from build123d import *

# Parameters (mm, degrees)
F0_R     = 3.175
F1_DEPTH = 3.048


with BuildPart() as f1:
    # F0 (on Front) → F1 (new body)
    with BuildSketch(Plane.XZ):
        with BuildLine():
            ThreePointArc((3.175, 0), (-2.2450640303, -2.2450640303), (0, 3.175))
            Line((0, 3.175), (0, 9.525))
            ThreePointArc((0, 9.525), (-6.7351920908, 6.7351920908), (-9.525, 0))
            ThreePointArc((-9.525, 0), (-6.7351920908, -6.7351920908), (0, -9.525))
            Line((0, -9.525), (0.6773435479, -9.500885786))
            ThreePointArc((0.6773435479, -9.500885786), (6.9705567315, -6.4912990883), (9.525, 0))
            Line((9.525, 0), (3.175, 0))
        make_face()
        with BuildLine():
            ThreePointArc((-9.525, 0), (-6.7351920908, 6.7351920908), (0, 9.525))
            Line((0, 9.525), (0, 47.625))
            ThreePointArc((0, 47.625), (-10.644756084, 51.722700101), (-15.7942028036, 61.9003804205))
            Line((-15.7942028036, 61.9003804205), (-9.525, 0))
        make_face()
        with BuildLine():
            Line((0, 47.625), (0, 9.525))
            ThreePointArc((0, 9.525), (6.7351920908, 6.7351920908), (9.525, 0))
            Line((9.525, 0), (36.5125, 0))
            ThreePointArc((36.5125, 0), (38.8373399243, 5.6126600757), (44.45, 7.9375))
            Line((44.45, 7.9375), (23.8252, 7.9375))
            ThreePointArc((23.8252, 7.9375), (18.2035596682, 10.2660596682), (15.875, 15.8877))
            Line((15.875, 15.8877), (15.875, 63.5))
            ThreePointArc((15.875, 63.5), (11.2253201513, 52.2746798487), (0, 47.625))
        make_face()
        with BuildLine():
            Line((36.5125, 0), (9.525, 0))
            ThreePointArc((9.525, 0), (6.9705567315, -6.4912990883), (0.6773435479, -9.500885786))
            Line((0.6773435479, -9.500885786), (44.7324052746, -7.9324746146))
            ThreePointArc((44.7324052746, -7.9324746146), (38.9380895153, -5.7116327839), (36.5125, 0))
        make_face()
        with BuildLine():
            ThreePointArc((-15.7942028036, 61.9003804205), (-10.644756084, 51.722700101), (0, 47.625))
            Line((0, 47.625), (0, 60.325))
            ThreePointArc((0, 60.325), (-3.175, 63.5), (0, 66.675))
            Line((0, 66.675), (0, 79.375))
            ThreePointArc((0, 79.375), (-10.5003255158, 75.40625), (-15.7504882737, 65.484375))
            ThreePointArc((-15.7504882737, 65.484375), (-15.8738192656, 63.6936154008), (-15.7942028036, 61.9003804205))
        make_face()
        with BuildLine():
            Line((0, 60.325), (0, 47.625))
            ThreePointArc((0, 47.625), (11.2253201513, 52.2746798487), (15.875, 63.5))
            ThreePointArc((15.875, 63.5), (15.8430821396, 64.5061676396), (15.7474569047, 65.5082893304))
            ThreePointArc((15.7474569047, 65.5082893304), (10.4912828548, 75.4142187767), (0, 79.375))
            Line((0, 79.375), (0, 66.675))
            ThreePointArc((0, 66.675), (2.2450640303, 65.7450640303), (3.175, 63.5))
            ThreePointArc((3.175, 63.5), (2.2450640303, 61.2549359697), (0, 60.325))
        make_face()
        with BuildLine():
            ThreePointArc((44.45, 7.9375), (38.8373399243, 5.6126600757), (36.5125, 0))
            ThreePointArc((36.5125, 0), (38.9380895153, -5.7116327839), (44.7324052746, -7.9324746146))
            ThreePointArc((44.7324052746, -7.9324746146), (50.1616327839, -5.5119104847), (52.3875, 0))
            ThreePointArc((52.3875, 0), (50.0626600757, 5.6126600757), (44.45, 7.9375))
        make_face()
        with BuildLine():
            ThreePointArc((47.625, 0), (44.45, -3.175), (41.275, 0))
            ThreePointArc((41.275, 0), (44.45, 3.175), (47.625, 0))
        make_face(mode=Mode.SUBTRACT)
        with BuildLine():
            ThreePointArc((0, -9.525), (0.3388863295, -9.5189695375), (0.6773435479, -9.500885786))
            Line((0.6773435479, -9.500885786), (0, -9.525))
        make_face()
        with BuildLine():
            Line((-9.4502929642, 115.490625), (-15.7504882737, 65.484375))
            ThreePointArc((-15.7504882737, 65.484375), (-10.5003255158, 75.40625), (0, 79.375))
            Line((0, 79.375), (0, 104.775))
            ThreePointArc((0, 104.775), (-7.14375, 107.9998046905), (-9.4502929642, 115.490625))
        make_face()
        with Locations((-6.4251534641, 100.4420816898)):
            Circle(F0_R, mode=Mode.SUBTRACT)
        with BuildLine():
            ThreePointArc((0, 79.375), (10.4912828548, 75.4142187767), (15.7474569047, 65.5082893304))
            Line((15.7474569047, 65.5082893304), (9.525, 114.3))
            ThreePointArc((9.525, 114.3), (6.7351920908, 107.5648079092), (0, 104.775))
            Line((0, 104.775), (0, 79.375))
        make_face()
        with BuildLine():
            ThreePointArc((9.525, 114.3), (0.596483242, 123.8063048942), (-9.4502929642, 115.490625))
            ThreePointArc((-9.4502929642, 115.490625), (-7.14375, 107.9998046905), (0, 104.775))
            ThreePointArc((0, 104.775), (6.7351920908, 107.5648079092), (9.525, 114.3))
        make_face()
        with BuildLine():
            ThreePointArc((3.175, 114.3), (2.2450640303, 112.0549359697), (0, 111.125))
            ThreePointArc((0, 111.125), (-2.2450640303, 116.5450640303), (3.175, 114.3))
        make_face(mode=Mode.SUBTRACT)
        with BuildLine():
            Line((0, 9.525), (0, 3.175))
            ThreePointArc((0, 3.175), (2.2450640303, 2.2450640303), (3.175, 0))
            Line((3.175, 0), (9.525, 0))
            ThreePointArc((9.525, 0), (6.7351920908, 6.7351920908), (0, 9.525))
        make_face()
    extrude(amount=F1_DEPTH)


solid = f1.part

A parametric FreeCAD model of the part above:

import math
import FreeCAD as App
import Part
import Sketcher

V = App.Vector
Q = App.Units.Quantity

doc = App.newDocument("Part")
params = doc.addObject("Spreadsheet::Sheet", "Params")
for row, (alias, value) in enumerate([
    ("sketch1_diameter", "0.25 in"),
    ("sketch1_radius", "0.375 in"),
    ("sketch1_radius2", "0.3125 in"),
    ("sketch1_radius3", "0.313 in"),
    ("sketch1_radius4", "0.625 in"),
    ("pad1_length", "0.12 in"),
], start=1):
    params.set(f"A{row}", alias)
    params.set(f"B{row}", "=" + value)
    params.setAlias(f"B{row}", alias)

body = doc.addObject("PartDesign::Body", "Body")

sketch1 = doc.addObject("Sketcher::SketchObject", "Sketch")
body.addObject(sketch1)
sketch1.AttachmentSupport = (doc.XZ_Plane, [""])
sketch1.MapMode = "FlatFace"
sketch1.addGeometry([
    Part.ArcOfCircle(Part.Circle(V(0, 0, 0), V(0, 0, 1), 9.5), math.radians(180), math.radians(270)),
    Part.ArcOfCircle(Part.Circle(V(0, 0, 0), V(0, 0, 1), 9.5), math.radians(-90), math.radians(-85.92)),
    Part.LineSegment(V(0.7, -9.5, 0), V(44.7, -7.9, 0)),
    Part.ArcOfCircle(Part.Circle(V(44.5, 0, 0), V(0, 0, 1), 7.9), math.radians(-88), math.radians(90)),
    Part.LineSegment(V(44.5, 7.9, 0), V(23.8, 7.9, 0)),
    Part.ArcOfCircle(Part.Circle(V(23.8, 15.9, 0), V(0, 0, 1), 8), math.radians(180), math.radians(270)),
    Part.LineSegment(V(15.9, 15.9, 0), V(15.9, 63.5, 0)),
    Part.ArcOfCircle(Part.Circle(V(0, 63.5, 0), V(0, 0, 1), 15.9), math.radians(0), math.radians(7.27)),
    Part.LineSegment(V(15.7, 65.5, 0), V(9.5, 114.3, 0)),
    Part.ArcOfCircle(Part.Circle(V(0, 114.3, 0), V(0, 0, 1), 9.5), math.radians(0), math.radians(173)),
    Part.LineSegment(V(-9.5, 115.5, 0), V(-15.8, 65.5, 0)),
    Part.ArcOfCircle(Part.Circle(V(0, 63.5, 0), V(0, 0, 1), 15.9), math.radians(172.82), math.radians(185.78)),
    Part.LineSegment(V(-15.8, 61.9, 0), V(-9.5, 0, 0)),
    Part.ArcOfCircle(Part.Circle(V(0, 0, 0), V(0, 0, 1), 3.2), math.radians(90), math.radians(360)),
    Part.ArcOfCircle(Part.Circle(V(0, 0, 0), V(0, 0, 1), 3.2), math.radians(0), math.radians(90)),
    Part.Circle(V(44.5, 0, 0), V(0, 0, 1), 3.2),
    Part.ArcOfCircle(Part.Circle(V(0, 63.5, 0), V(0, 0, 1), 3.2), math.radians(90), math.radians(270)),
    Part.ArcOfCircle(Part.Circle(V(0, 63.5, 0), V(0, 0, 1), 3.2), math.radians(0), math.radians(90)),
    Part.ArcOfCircle(Part.Circle(V(0, 63.5, 0), V(0, 0, 1), 3.2), math.radians(-90), math.radians(0)),
    Part.Circle(V(-6.4, 100.4, 0), V(0, 0, 1), 3.2),
    Part.ArcOfCircle(Part.Circle(V(0, 114.3, 0), V(0, 0, 1), 3.2), math.radians(0), math.radians(270)),
    Part.ArcOfCircle(Part.Circle(V(0, 114.3, 0), V(0, 0, 1), 3.2), math.radians(-90), math.radians(0)),
], False)
sketch1.addConstraint([
    Sketcher.Constraint("Tangent", 0, 2, 1, 1),
    Sketcher.Constraint("Coincident", 1, 2, 2, 1),
    Sketcher.Constraint("Tangent", 2, 2, 3, 1),
    Sketcher.Constraint("Tangent", 3, 2, 4, 1),
    Sketcher.Constraint("Tangent", 4, 2, 5, 2),
    Sketcher.Constraint("Tangent", 5, 1, 6, 1),
    Sketcher.Constraint("Tangent", 6, 2, 7, 1),
    Sketcher.Constraint("Tangent", 7, 2, 8, 1),
    Sketcher.Constraint("Coincident", 8, 2, 9, 1),
    Sketcher.Constraint("Tangent", 9, 2, 10, 1),
    Sketcher.Constraint("Tangent", 10, 2, 11, 1),
    Sketcher.Constraint("Tangent", 11, 2, 12, 1),
    Sketcher.Constraint("Coincident", 12, 2, 0, 1),
    Sketcher.Constraint("Tangent", 13, 1, 14, 2),
    Sketcher.Constraint("Coincident", 14, 1, 13, 2),
    Sketcher.Constraint("Tangent", 16, 1, 17, 2),
    Sketcher.Constraint("Tangent", 17, 1, 18, 2),
    Sketcher.Constraint("Tangent", 18, 1, 16, 2),
    Sketcher.Constraint("Tangent", 20, 1, 21, 2),
    Sketcher.Constraint("Coincident", 21, 1, 20, 2),
    Sketcher.Constraint("Horizontal", 4),
    Sketcher.Constraint("Vertical", 6),
    Sketcher.Constraint("Coincident", 0, 3, -1, 1),
    Sketcher.Constraint("Coincident", 13, 3, -1, 1),
    Sketcher.Constraint("Coincident", 11, 3, 7, 3),
    Sketcher.Constraint("Coincident", 15, 3, 3, 3),
    Sketcher.Constraint("Coincident", 16, 3, 7, 3),
    Sketcher.Constraint("Coincident", 20, 3, 9, 3),
    Sketcher.Constraint("Equal", 0, 1),
    Sketcher.Constraint("Equal", 1, 9),
    Sketcher.Constraint("Equal", 7, 11),
    Sketcher.Constraint("Equal", 14, 15),
    Sketcher.Constraint("Equal", 15, 16),
    Sketcher.Constraint("Equal", 18, 19),
    Sketcher.Constraint("Equal", 19, 20),
    Sketcher.Constraint("PointOnObject", 3, 3, -1),
    Sketcher.Constraint("PointOnObject", 7, 3, -2),
    Sketcher.Constraint("PointOnObject", 9, 3, -2),
    Sketcher.Constraint("PointOnObject", 0, 2, -2),
    Sketcher.Constraint("PointOnObject", 12, 2, -1),
    Sketcher.Constraint("PointOnObject", 13, 1, -2),
    Sketcher.Constraint("PointOnObject", 14, 1, -1),
    Sketcher.Constraint("PointOnObject", 16, 1, -2),
    Sketcher.Constraint("PointOnObject", 18, 1, -2),
    Sketcher.Constraint("PointOnObject", 21, 1, -2),
    Sketcher.Constraint("Horizontal", 21, 3, 8, 2),
    Sketcher.Constraint("Horizontal", 6, 2, 17, 1),
    Sketcher.Constraint("Horizontal", 8, 2, 20, 1),
    Sketcher.Constraint("Diameter", 15, Q("0.25 in")),
    Sketcher.Constraint("Radius", 0, Q("0.375 in")),
    Sketcher.Constraint("Radius", 3, Q("0.3125 in")),
    Sketcher.Constraint("Radius", 5, Q("0.313 in")),
    Sketcher.Constraint("Radius", 7, Q("0.625 in")),
    Sketcher.Constraint("DistanceY", 7, 3, 9, 3, Q("2 in")),
    Sketcher.Constraint("DistanceY", -1, 1, 7, 3, Q("2.5 in")),
    Sketcher.Constraint("DistanceX", 4, 2, 4, 1, Q("0.812 in")),
    Sketcher.Constraint("DistanceX", 9, 2, 19, 3, Q("0.1191 in")),
    Sketcher.Constraint("Distance", 2, 44.082972),
    Sketcher.Constraint("DistanceY", -1, 1, 19, 3, 100.442082),
])
sketch1.setExpression("Constraints[48]", "Params.sketch1_diameter")
sketch1.setExpression("Constraints[49]", "Params.sketch1_radius")
sketch1.setExpression("Constraints[50]", "Params.sketch1_radius2")
sketch1.setExpression("Constraints[51]", "Params.sketch1_radius3")
sketch1.setExpression("Constraints[52]", "Params.sketch1_radius4")
pad1 = doc.addObject("PartDesign::Pad", "Pad")
body.addObject(pad1)
pad1.Profile = sketch1
pad1.setExpression("Length", "Params.pad1_length")

doc.recompute()
